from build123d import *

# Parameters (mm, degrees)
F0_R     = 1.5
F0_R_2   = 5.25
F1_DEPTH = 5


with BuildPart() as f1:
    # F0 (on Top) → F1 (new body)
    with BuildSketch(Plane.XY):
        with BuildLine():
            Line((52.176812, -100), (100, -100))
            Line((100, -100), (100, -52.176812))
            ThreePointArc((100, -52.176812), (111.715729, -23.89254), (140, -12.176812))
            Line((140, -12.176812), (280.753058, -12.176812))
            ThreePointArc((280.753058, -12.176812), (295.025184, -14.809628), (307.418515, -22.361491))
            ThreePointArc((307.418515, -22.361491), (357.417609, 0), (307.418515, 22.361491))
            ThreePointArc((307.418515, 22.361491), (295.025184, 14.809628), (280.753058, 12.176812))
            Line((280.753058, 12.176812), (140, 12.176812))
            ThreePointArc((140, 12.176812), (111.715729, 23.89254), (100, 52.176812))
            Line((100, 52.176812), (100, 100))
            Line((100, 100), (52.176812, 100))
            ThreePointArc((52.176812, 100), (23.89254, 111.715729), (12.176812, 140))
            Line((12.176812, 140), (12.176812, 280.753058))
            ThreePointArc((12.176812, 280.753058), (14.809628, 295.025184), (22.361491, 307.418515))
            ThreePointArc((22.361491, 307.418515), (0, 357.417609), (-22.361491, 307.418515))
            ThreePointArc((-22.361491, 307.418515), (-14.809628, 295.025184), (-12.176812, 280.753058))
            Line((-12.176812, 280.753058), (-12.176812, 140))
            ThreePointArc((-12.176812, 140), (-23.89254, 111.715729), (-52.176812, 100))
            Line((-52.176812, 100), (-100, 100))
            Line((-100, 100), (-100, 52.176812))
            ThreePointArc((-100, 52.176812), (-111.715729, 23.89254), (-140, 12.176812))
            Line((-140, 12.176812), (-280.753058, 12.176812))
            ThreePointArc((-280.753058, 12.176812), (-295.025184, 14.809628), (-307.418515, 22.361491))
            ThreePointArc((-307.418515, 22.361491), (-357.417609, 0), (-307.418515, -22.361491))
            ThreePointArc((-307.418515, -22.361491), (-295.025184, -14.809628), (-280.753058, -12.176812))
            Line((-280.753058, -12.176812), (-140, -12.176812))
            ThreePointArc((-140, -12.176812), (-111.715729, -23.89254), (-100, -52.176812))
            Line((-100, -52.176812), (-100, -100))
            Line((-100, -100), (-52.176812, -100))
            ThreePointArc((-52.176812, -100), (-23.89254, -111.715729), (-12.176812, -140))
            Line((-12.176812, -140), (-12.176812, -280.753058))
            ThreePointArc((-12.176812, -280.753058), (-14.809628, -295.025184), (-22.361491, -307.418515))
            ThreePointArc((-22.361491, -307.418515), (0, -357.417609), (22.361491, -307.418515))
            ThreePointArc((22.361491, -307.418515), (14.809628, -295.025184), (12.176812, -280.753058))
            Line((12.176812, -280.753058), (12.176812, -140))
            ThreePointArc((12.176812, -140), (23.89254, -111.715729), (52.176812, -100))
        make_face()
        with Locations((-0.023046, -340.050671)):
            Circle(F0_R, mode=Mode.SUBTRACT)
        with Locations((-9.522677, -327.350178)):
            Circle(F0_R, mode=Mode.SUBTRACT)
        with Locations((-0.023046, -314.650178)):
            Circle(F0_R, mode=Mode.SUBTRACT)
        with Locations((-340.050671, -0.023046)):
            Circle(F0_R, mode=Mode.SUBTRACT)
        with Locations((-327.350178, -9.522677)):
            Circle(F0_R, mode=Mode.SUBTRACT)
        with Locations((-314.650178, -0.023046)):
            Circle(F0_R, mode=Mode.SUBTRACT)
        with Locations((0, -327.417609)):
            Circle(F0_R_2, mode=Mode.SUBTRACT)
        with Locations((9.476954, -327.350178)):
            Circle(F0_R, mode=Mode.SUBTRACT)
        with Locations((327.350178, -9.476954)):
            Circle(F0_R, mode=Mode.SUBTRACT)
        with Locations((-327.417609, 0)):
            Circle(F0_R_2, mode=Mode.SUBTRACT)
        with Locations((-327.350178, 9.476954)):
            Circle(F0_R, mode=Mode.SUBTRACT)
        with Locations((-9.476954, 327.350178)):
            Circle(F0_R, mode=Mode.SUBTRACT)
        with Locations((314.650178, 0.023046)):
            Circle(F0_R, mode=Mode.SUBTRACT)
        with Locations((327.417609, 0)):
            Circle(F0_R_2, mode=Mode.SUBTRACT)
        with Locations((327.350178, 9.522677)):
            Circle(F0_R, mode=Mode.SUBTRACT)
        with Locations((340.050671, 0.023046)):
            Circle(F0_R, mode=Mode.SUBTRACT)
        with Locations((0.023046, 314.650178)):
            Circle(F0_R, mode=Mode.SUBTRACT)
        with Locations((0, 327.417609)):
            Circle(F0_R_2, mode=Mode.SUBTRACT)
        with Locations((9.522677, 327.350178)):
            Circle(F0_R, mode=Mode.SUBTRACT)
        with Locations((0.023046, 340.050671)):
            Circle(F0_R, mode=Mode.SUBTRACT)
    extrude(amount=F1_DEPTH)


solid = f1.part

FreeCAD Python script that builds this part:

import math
import FreeCAD as App
import Part
import Sketcher
from FreeCAD import Vector
Q = App.Units.Quantity

doc = App.newDocument("Part")
params = doc.addObject("Spreadsheet::Sheet", "Params")
for row, (alias, value) in enumerate([
    ("sketch1_diameter", "3 mm"),
    ("sketch1_radius", "39.999999 mm"),
    ("sketch1_radius2", "30 mm"),
    ("sketch1_diameter2", "10.5 mm"),
    ("pad1_length", "5 mm"),
], start=1):
    params.set(f"A{row}", alias)
    params.set(f"B{row}", "=" + value)
    params.setAlias(f"B{row}", alias)

body = doc.addObject("PartDesign::Body", "Body")

# Sketch on XY plane
sketch1 = doc.addObject("Sketcher::SketchObject", "Sketch")
body.addObject(sketch1)
sketch1.AttachmentSupport = (doc.XY_Plane, [""])
sketch1.MapMode = "FlatFace"
sketch1.addGeometry(Part.LineSegment(Vector(52.2, -100, 0), Vector(100, -100, 0)), False)
sketch1.addGeometry(Part.LineSegment(Vector(100, -100, 0), Vector(100, -52.2, 0)), False)
sketch1.addGeometry(Part.ArcOfCircle(Part.Circle(Vector(140, -52.2, 0), Vector(0, 0, 1), 40), math.radians(90), math.radians(180)), False)
sketch1.addGeometry(Part.LineSegment(Vector(140, -12.2, 0), Vector(280.8, -12.2, 0)), False)
sketch1.addGeometry(Part.ArcOfCircle(Part.Circle(Vector(280.8, -52.2, 0), Vector(0, 0, 1), 40), math.radians(48), math.radians(90)), False)
sketch1.addGeometry(Part.ArcOfCircle(Part.Circle(Vector(327.4, 0, 0), Vector(0, 0, 1), 30), math.radians(-132), math.radians(132)), False)
sketch1.addGeometry(Part.ArcOfCircle(Part.Circle(Vector(280.8, 52.2, 0), Vector(0, 0, 1), 40), math.radians(-90), math.radians(-48)), False)
sketch1.addGeometry(Part.LineSegment(Vector(280.8, 12.2, 0), Vector(140, 12.2, 0)), False)
sketch1.addGeometry(Part.ArcOfCircle(Part.Circle(Vector(140, 52.2, 0), Vector(0, 0, 1), 40), math.radians(180), math.radians(270)), False)
sketch1.addGeometry(Part.LineSegment(Vector(100, 52.2, 0), Vector(100, 100, 0)), False)
sketch1.addGeometry(Part.LineSegment(Vector(100, 100, 0), Vector(52.2, 100, 0)), False)
sketch1.addGeometry(Part.ArcOfCircle(Part.Circle(Vector(52.2, 140, 0), Vector(0, 0, 1), 40), math.radians(180), math.radians(270)), False)
sketch1.addGeometry(Part.LineSegment(Vector(12.2, 140, 0), Vector(12.2, 280.8, 0)), False)
sketch1.addGeometry(Part.ArcOfCircle(Part.Circle(Vector(52.2, 280.8, 0), Vector(0, 0, 1), 40), math.radians(138), math.radians(180)), False)
sketch1.addGeometry(Part.ArcOfCircle(Part.Circle(Vector(0, 327.4, 0), Vector(0, 0, 1), 30), math.radians(-42), math.radians(222)), False)
sketch1.addGeometry(Part.ArcOfCircle(Part.Circle(Vector(-52.2, 280.8, 0), Vector(0, 0, 1), 40), math.radians(0), math.radians(42)), False)
sketch1.addGeometry(Part.LineSegment(Vector(-12.2, 280.8, 0), Vector(-12.2, 140, 0)), False)
sketch1.addGeometry(Part.ArcOfCircle(Part.Circle(Vector(-52.2, 140, 0), Vector(0, 0, 1), 40), math.radians(-90), math.radians(0)), False)
sketch1.addGeometry(Part.LineSegment(Vector(-52.2, 100, 0), Vector(-100, 100, 0)), False)
sketch1.addGeometry(Part.LineSegment(Vector(-100, 100, 0), Vector(-100, 52.2, 0)), False)
sketch1.addGeometry(Part.ArcOfCircle(Part.Circle(Vector(-140, 52.2, 0), Vector(0, 0, 1), 40), math.radians(-90), math.radians(0)), False)
sketch1.addGeometry(Part.LineSegment(Vector(-140, 12.2, 0), Vector(-280.8, 12.2, 0)), False)
sketch1.addGeometry(Part.ArcOfCircle(Part.Circle(Vector(-280.8, 52.2, 0), Vector(0, 0, 1), 40), math.radians(-132), math.radians(-90)), False)
sketch1.addGeometry(Part.ArcOfCircle(Part.Circle(Vector(-327.4, 0, 0), Vector(0, 0, 1), 30), math.radians(48), math.radians(312)), False)
sketch1.addGeometry(Part.ArcOfCircle(Part.Circle(Vector(-280.8, -52.2, 0), Vector(0, 0, 1), 40), math.radians(90), math.radians(132)), False)
sketch1.addGeometry(Part.LineSegment(Vector(-280.8, -12.2, 0), Vector(-140, -12.2, 0)), False)
sketch1.addGeometry(Part.ArcOfCircle(Part.Circle(Vector(-140, -52.2, 0), Vector(0, 0, 1), 40), math.radians(0), math.radians(90)), False)
sketch1.addGeometry(Part.LineSegment(Vector(-100, -52.2, 0), Vector(-100, -100, 0)), False)
sketch1.addGeometry(Part.LineSegment(Vector(-100, -100, 0), Vector(-52.2, -100, 0)), False)
sketch1.addGeometry(Part.ArcOfCircle(Part.Circle(Vector(-52.2, -140, 0), Vector(0, 0, 1), 40), math.radians(0), math.radians(90)), False)
sketch1.addGeometry(Part.LineSegment(Vector(-12.2, -140, 0), Vector(-12.2, -280.8, 0)), False)
sketch1.addGeometry(Part.ArcOfCircle(Part.Circle(Vector(-52.2, -280.8, 0), Vector(0, 0, 1), 40), math.radians(-42), math.radians(0)), False)
sketch1.addGeometry(Part.ArcOfCircle(Part.Circle(Vector(0, -327.4, 0), Vector(0, 0, 1), 30), math.radians(138), math.radians(402)), False)
sketch1.addGeometry(Part.ArcOfCircle(Part.Circle(Vector(52.2, -280.8, 0), Vector(0, 0, 1), 40), math.radians(180), math.radians(222)), False)
sketch1.addGeometry(Part.LineSegment(Vector(12.2, -280.8, 0), Vector(12.2, -140, 0)), False)
sketch1.addGeometry(Part.ArcOfCircle(Part.Circle(Vector(52.2, -140, 0), Vector(0, 0, 1), 40), math.radians(90), math.radians(180)), False)
sketch1.addGeometry(Part.Circle(Vector(0, -340.1, 0), Vector(0, 0, 1), 1.5), False)
sketch1.addGeometry(Part.Circle(Vector(-9.5, -327.4, 0), Vector(0, 0, 1), 1.5), False)
sketch1.addGeometry(Part.Circle(Vector(0, -314.7, 0), Vector(0, 0, 1), 1.5), False)
sketch1.addGeometry(Part.Circle(Vector(-340.1, 0, 0), Vector(0, 0, 1), 1.5), False)
sketch1.addGeometry(Part.Circle(Vector(-327.4, -9.5, 0), Vector(0, 0, 1), 1.5), False)
sketch1.addGeometry(Part.Circle(Vector(-314.7, 0, 0), Vector(0, 0, 1), 1.5), False)
sketch1.addGeometry(Part.Circle(Vector(0, -327.4, 0), Vector(0, 0, 1), 5.2), False)
sketch1.addGeometry(Part.Circle(Vector(9.5, -327.4, 0), Vector(0, 0, 1), 1.5), False)
sketch1.addGeometry(Part.Circle(Vector(327.4, -9.5, 0), Vector(0, 0, 1), 1.5), False)
sketch1.addGeometry(Part.Circle(Vector(-327.4, 0, 0), Vector(0, 0, 1), 5.2), False)
sketch1.addGeometry(Part.Circle(Vector(-327.4, 9.5, 0), Vector(0, 0, 1), 1.5), False)
sketch1.addGeometry(Part.Circle(Vector(-9.5, 327.4, 0), Vector(0, 0, 1), 1.5), False)
sketch1.addGeometry(Part.Circle(Vector(314.7, 0, 0), Vector(0, 0, 1), 1.5), False)
sketch1.addGeometry(Part.Circle(Vector(327.4, 0, 0), Vector(0, 0, 1), 5.2), False)
sketch1.addGeometry(Part.Circle(Vector(327.4, 9.5, 0), Vector(0, 0, 1), 1.5), False)
sketch1.addGeometry(Part.Circle(Vector(340.1, 0, 0), Vector(0, 0, 1), 1.5), False)
sketch1.addGeometry(Part.Circle(Vector(0, 314.7, 0), Vector(0, 0, 1), 1.5), False)
sketch1.addGeometry(Part.Circle(Vector(0, 327.4, 0), Vector(0, 0, 1), 5.2), False)
sketch1.addGeometry(Part.Circle(Vector(9.5, 327.4, 0), Vector(0, 0, 1), 1.5), False)
sketch1.addGeometry(Part.Circle(Vector(0, 340.1, 0), Vector(0, 0, 1), 1.5), False)
sketch1.addConstraint(Sketcher.Constraint("Coincident", 0, 2, 1, 1))
sketch1.addConstraint(Sketcher.Constraint("Tangent", 1, 2, 2, 2))
sketch1.addConstraint(Sketcher.Constraint("Tangent", 2, 1, 3, 1))
sketch1.addConstraint(Sketcher.Constraint("Tangent", 3, 2, 4, 2))
sketch1.addConstraint(Sketcher.Constraint("Tangent", 4, 1, 5, 1))
sketch1.addConstraint(Sketcher.Constraint("Tangent", 5, 2, 6, 2))
sketch1.addConstraint(Sketcher.Constraint("Tangent", 6, 1, 7, 1))
sketch1.addConstraint(Sketcher.Constraint("Tangent", 7, 2, 8, 2))
sketch1.addConstraint(Sketcher.Constraint("Tangent", 8, 1, 9, 1))
sketch1.addConstraint(Sketcher.Constraint("Coincident", 9, 2, 10, 1))
sketch1.addConstraint(Sketcher.Constraint("Tangent", 10, 2, 11, 2))
sketch1.addConstraint(Sketcher.Constraint("Tangent", 11, 1, 12, 1))
sketch1.addConstraint(Sketcher.Constraint("Tangent", 12, 2, 13, 2))
sketch1.addConstraint(Sketcher.Constraint("Tangent", 13, 1, 14, 1))
sketch1.addConstraint(Sketcher.Constraint("Tangent", 14, 2, 15, 2))
sketch1.addConstraint(Sketcher.Constraint("Tangent", 15, 1, 16, 1))
sketch1.addConstraint(Sketcher.Constraint("Tangent", 16, 2, 17, 2))
sketch1.addConstraint(Sketcher.Constraint("Tangent", 17, 1, 18, 1))
sketch1.addConstraint(Sketcher.Constraint("Coincident", 18, 2, 19, 1))
sketch1.addConstraint(Sketcher.Constraint("Tangent", 19, 2, 20, 2))
sketch1.addConstraint(Sketcher.Constraint("Tangent", 20, 1, 21, 1))
sketch1.addConstraint(Sketcher.Constraint("Tangent", 21, 2, 22, 2))
sketch1.addConstraint(Sketcher.Constraint("Tangent", 22, 1, 23, 1))
sketch1.addConstraint(Sketcher.Constraint("Tangent", 23, 2, 24, 2))
sketch1.addConstraint(Sketcher.Constraint("Tangent", 24, 1, 25, 1))
sketch1.addConstraint(Sketcher.Constraint("Tangent", 25, 2, 26, 2))
sketch1.addConstraint(Sketcher.Constraint("Tangent", 26, 1, 27, 1))
sketch1.addConstraint(Sketcher.Constraint("Coincident", 27, 2, 28, 1))
sketch1.addConstraint(Sketcher.Constraint("Tangent", 28, 2, 29, 2))
sketch1.addConstraint(Sketcher.Constraint("Tangent", 29, 1, 30, 1))
sketch1.addConstraint(Sketcher.Constraint("Tangent", 30, 2, 31, 2))
sketch1.addConstraint(Sketcher.Constraint("Tangent", 31, 1, 32, 1))
sketch1.addConstraint(Sketcher.Constraint("Tangent", 32, 2, 33, 2))
sketch1.addConstraint(Sketcher.Constraint("Tangent", 33, 1, 34, 1))
sketch1.addConstraint(Sketcher.Constraint("Tangent", 34, 2, 35, 2))
sketch1.addConstraint(Sketcher.Constraint("Tangent", 35, 1, 0, 1))
sketch1.addConstraint(Sketcher.Constraint("Horizontal", 0))
sketch1.addConstraint(Sketcher.Constraint("Vertical", 1))
sketch1.addConstraint(Sketcher.Constraint("Horizontal", 3))
sketch1.addConstraint(Sketcher.Constraint("Horizontal", 7))
sketch1.addConstraint(Sketcher.Constraint("Vertical", 9))
sketch1.addConstraint(Sketcher.Constraint("Horizontal", 10))
sketch1.addConstraint(Sketcher.Constraint("Vertical", 12))
sketch1.addConstraint(Sketcher.Constraint("Vertical", 16))
sketch1.addConstraint(Sketcher.Constraint("Horizontal", 18))
sketch1.addConstraint(Sketcher.Constraint("Vertical", 19))
sketch1.addConstraint(Sketcher.Constraint("Horizontal", 21))
sketch1.addConstraint(Sketcher.Constraint("Horizontal", 25))
sketch1.addConstraint(Sketcher.Constraint("Vertical", 27))
sketch1.addConstraint(Sketcher.Constraint("Horizontal", 28))
sketch1.addConstraint(Sketcher.Constraint("Vertical", 30))
sketch1.addConstraint(Sketcher.Constraint("Vertical", 34))
sketch1.addConstraint(Sketcher.Constraint("Coincident", 42, 3, 32, 3))
sketch1.addConstraint(Sketcher.Constraint("Coincident", 45, 3, 23, 3))
sketch1.addConstraint(Sketcher.Constraint("Coincident", 49, 3, 5, 3))
sketch1.addConstraint(Sketcher.Constraint("Coincident", 53, 3, 14, 3))
sketch1.addConstraint(Sketcher.Constraint("Equal", 4, 6))
sketch1.addConstraint(Sketcher.Constraint("Equal", 2, 8))
sketch1.addConstraint(Sketcher.Constraint("Equal", 8, 11))
sketch1.addConstraint(Sketcher.Constraint("Equal", 6, 13))
sketch1.addConstraint(Sketcher.Constraint("Equal", 5, 14))
sketch1.addConstraint(Sketcher.Constraint("Equal", 13, 15))
sketch1.addConstraint(Sketcher.Constraint("Equal", 11, 17))
sketch1.addConstraint(Sketcher.Constraint("Equal", 17, 20))
sketch1.addConstraint(Sketcher.Constraint("Equal", 15, 22))
sketch1.addConstraint(Sketcher.Constraint("Equal", 14, 23))
sketch1.addConstraint(Sketcher.Constraint("Equal", 22, 24))
sketch1.addConstraint(Sketcher.Constraint("Equal", 20, 26))
sketch1.addConstraint(Sketcher.Constraint("Equal", 26, 29))
sketch1.addConstraint(Sketcher.Constraint("Equal", 24, 31))
sketch1.addConstraint(Sketcher.Constraint("Equal", 23, 32))
sketch1.addConstraint(Sketcher.Constraint("Equal", 31, 33))
sketch1.addConstraint(Sketcher.Constraint("Equal", 29, 35))
sketch1.addConstraint(Sketcher.Constraint("Equal", 36, 37))
sketch1.addConstraint(Sketcher.Constraint("Equal", 37, 38))
sketch1.addConstraint(Sketcher.Constraint("Equal", 38, 39))
sketch1.addConstraint(Sketcher.Constraint("Equal", 39, 40))
sketch1.addConstraint(Sketcher.Constraint("Equal", 40, 41))
sketch1.addConstraint(Sketcher.Constraint("Equal", 41, 43))
sketch1.addConstraint(Sketcher.Constraint("Equal", 43, 44))
sketch1.addConstraint(Sketcher.Constraint("Equal", 42, 45))
sketch1.addConstraint(Sketcher.Constraint("Equal", 44, 46))
sketch1.addConstraint(Sketcher.Constraint("Equal", 46, 47))
sketch1.addConstraint(Sketcher.Constraint("Equal", 47, 48))
sketch1.addConstraint(Sketcher.Constraint("Equal", 45, 49))
sketch1.addConstraint(Sketcher.Constraint("Equal", 48, 50))
sketch1.addConstraint(Sketcher.Constraint("Equal", 50, 51))
sketch1.addConstraint(Sketcher.Constraint("Equal", 51, 52))
sketch1.addConstraint(Sketcher.Constraint("Equal", 49, 53))
sketch1.addConstraint(Sketcher.Constraint("Equal", 52, 54))
sketch1.addConstraint(Sketcher.Constraint("Equal", 54, 55))
sketch1.addConstraint(Sketcher.Constraint("Symmetric", 2, 3, 20, 3, -1, 1))
sketch1.addConstraint(Sketcher.Constraint("Symmetric", 5, 3, 23, 3, -1, 1))
sketch1.addConstraint(Sketcher.Constraint("Symmetric", 8, 3, 26, 3, -1, 1))
sketch1.addConstraint(Sketcher.Constraint("Symmetric", 11, 3, 29, 3, -1, 1))
sketch1.addConstraint(Sketcher.Constraint("Symmetric", 14, 3, 32, 3, -1, 1))
sketch1.addConstraint(Sketcher.Constraint("Symmetric", 17, 3, 35, 3, -1, 1))
sketch1.addConstraint(Sketcher.Constraint("Symmetric", 44, 3, 46, 3, -1, 1))
sketch1.addConstraint(Sketcher.Constraint("Symmetric", 43, 3, 47, 3, -1, 1))
sketch1.addConstraint(Sketcher.Constraint("Symmetric", 41, 3, 48, 3, -1, 1))
sketch1.addConstraint(Sketcher.Constraint("Symmetric", 40, 3, 50, 3, -1, 1))
sketch1.addConstraint(Sketcher.Constraint("Symmetric", 39, 3, 51, 3, -1, 1))
sketch1.addConstraint(Sketcher.Constraint("Symmetric", 38, 3, 52, 3, -1, 1))
sketch1.addConstraint(Sketcher.Constraint("Symmetric", 37, 3, 54, 3, -1, 1))
sketch1.addConstraint(Sketcher.Constraint("Symmetric", 36, 3, 55, 3, -1, 1))
sketch1.addConstraint(Sketcher.Constraint("Symmetric", 13, 3, 15, 3, -2))
sketch1.addConstraint(Sketcher.Constraint("Symmetric", 8, 3, 20, 3, -2))
sketch1.addConstraint(Sketcher.Constraint("PointOnObject", 5, 3, -1))
sketch1.addConstraint(Sketcher.Constraint("Horizontal", 11, 3, 17, 3))
sketch1.addConstraint(Sketcher.Constraint("Horizontal", 39, 3, 41, 3))
sketch1.addConstraint(Sketcher.Constraint("Horizontal", 37, 3, 43, 3))
sketch1.addConstraint(Sketcher.Constraint("Vertical", 36, 3, 38, 3))
sketch1.addConstraint(Sketcher.Constraint("Vertical", 40, 3, 46, 3))
sketch1.addConstraint(Sketcher.Constraint("Equal", 28, 1))
sketch1.addConstraint(Sketcher.Constraint("Equal", 25, 12))
sketch1.addConstraint(Sketcher.Constraint("Diameter", 36, Q("3 mm")))
sketch1.addConstraint(Sketcher.Constraint("Radius", 2, Q("39.999999 mm")))
sketch1.addConstraint(Sketcher.Constraint("Radius", 5, Q("30 mm")))
sketch1.addConstraint(Sketcher.Constraint("Diameter", 42, Q("10.5 mm")))
sketch1.addConstraint(Sketcher.Constraint("DistanceX", -1, 1, 2, 3, Q("139.999999 mm")))
sketch1.addConstraint(Sketcher.Constraint("DistanceY", -1, 1, 11, 3, Q("139.999999 mm")))
sketch1.addConstraint(Sketcher.Constraint("Radius", 4, Q("39.999993 mm")))
sketch1.addConstraint(Sketcher.Constraint("DistanceX", 0, 1, 0, 2, Q("47.823188 mm")))
sketch1.addConstraint(Sketcher.Constraint("DistanceX", 3, 1, 3, 2, Q("140.753058 mm")))
sketch1.addConstraint(Sketcher.Constraint("DistanceY", 36, 3, -1, 1, Q("340.050671 mm")))
sketch1.addConstraint(Sketcher.Constraint("DistanceY", 37, 3, -1, 1, Q("327.350178 mm")))
sketch1.addConstraint(Sketcher.Constraint("DistanceY", 38, 3, -1, 1, Q("314.650178 mm")))
sketch1.addConstraint(Sketcher.Constraint("DistanceX", 39, 3, -1, 1, Q("340.050671 mm")))
sketch1.addConstraint(Sketcher.Constraint("DistanceX", 40, 3, -1, 1, Q("327.350178 mm")))
sketch1.addConstraint(Sketcher.Constraint("DistanceX", 41, 3, -1, 1, Q("314.650178 mm")))
sketch1.addConstraint(Sketcher.Constraint("DistanceX", 36, 3, -1, 1, Q("0.023046 mm")))
sketch1.addConstraint(Sketcher.Constraint("DistanceX", 37, 3, -1, 1, Q("9.522677 mm")))
sketch1.addConstraint(Sketcher.Constraint("DistanceY", 39, 3, -1, 1, Q("0.023046 mm")))
sketch1.addConstraint(Sketcher.Constraint("DistanceY", 40, 3, -1, 1, Q("9.522677 mm")))
sketch1.addConstraint(Sketcher.Constraint("DistanceX", -1, 1, 43, 3, Q("9.476954 mm")))
sketch1.addConstraint(Sketcher.Constraint("DistanceY", 44, 3, -1, 1, Q("9.476954 mm")))
sketch1.setExpression("Constraints[115]", "Params.sketch1_diameter")
sketch1.setExpression("Constraints[116]", "Params.sketch1_radius")
sketch1.setExpression("Constraints[117]", "Params.sketch1_radius2")
sketch1.setExpression("Constraints[118]", "Params.sketch1_diameter2")
pad1 = doc.addObject("PartDesign::Pad", "Pad")
body.addObject(pad1)
pad1.Profile = sketch1
pad1.setExpression("Length", "Params.pad1_length")

doc.recompute()
